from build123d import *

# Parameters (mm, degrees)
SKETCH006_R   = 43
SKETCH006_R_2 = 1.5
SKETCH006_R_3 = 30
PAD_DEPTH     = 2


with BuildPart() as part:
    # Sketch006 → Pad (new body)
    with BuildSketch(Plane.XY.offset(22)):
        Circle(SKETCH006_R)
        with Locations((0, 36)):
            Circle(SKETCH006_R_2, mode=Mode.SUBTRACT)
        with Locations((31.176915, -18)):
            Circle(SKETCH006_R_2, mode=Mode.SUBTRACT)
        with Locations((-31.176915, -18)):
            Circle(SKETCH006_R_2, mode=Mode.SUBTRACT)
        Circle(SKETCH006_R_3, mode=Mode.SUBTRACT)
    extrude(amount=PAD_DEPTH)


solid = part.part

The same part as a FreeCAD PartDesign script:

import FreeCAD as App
import Part
import Sketcher

V = App.Vector
Q = App.Units.Quantity

doc = App.newDocument("Part")
body = doc.addObject("PartDesign::Body", "Body")

# Sketch on XY plane
sketch1 = doc.addObject("Sketcher::SketchObject", "Sketch")
body.addObject(sketch1)
sketch1.AttachmentSupport = (doc.XY_Plane, [""])
sketch1.MapMode = "FlatFace"
sketch1.AttachmentOffset = App.Placement(V(0, 0, 22), App.Rotation())
sketch1.addGeometry([
    Part.Circle(V(0, 0, 0), V(0, 0, 1), 43),  # 0
    Part.Circle(V(-31.2, -18, 0), V(0, 0, 1), 1.5),  # 1
    Part.Circle(V(31.2, -18, 0), V(0, 0, 1), 1.5),  # 2
    Part.Circle(V(0, 0, 0), V(0, 0, 1), 30),  # 3
    Part.Circle(V(0, 36, 0), V(0, 0, 1), 1.5),  # 4
], False)
sketch1.addConstraint([
    Sketcher.Constraint("Coincident", 0, 3, -1, 1),
    Sketcher.Constraint("Coincident", 3, 3, -1, 1),
    Sketcher.Constraint("Equal", 1, 2),
    Sketcher.Constraint("Equal", 2, 4),
    Sketcher.Constraint("Symmetric", 1, 3, 2, 3, -2),
    Sketcher.Constraint("PointOnObject", 4, 3, -2),
    Sketcher.Constraint("Diameter", 0, Q("86 mm")),
    Sketcher.Constraint("Diameter", 1, Q("3 mm")),
    Sketcher.Constraint("Diameter", 3, Q("60 mm")),
    Sketcher.Constraint("DistanceY", 1, 3, -1, 1, Q("18 mm")),
    Sketcher.Constraint("DistanceY", -1, 1, 4, 3, Q("36 mm")),
    Sketcher.Constraint("DistanceX", 1, 3, 2, 3, Q("62.35383 mm")),
])
pad1 = doc.addObject("PartDesign::Pad", "Pad")
body.addObject(pad1)
pad1.Profile = sketch1
pad1.Length = 2

doc.recompute()
